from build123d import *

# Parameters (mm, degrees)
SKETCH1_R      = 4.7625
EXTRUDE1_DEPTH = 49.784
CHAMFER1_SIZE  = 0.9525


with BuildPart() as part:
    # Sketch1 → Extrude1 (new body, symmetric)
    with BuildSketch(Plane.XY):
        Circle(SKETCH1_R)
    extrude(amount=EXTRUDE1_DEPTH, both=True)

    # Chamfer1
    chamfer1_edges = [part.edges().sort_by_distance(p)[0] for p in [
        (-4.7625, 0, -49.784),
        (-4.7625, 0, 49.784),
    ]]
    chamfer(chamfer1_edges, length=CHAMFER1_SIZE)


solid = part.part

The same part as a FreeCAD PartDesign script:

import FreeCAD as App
import Part
import Sketcher

V = App.Vector
Q = App.Units.Quantity


def edges_at(feature, points):
    """Names of the edges that pass closest to the given points."""
    edges = feature.Shape.Edges
    near = lambda p: min(range(len(edges)), key=lambda i: edges[i].distToShape(Part.Vertex(*p))[0])
    return sorted({f"Edge{near(p) + 1}" for p in points})

doc = App.newDocument("Part")
body = doc.addObject("PartDesign::Body", "Body")

# Sketch on XY plane
sketch1 = body.newObject("Sketcher::SketchObject", "Sketch")
sketch1.AttachmentSupport = (doc.getObject("XY_Plane"), [""])
sketch1.MapMode = "FlatFace"
sketch1.addGeometry(Part.Circle(V(0, 0, 0), V(0, 0, 1), 4.7625), False)
sketch1.addConstraint(Sketcher.Constraint("Coincident", 0, 3, -1, 1))
sketch1.addConstraint(Sketcher.Constraint("Diameter", 0, Q("0.375 in")))
pad1 = body.newObject("PartDesign::Pad", "Pad")
pad1.Profile = sketch1
pad1.Length = Q("3.92 in")
pad1.Midplane = True
doc.recompute()

chamfer = body.newObject("PartDesign::Chamfer", "Chamfer")
chamfer.Base = (pad1, edges_at(pad1, [(-4.763, 0, -49.784), (-4.763, 0, 49.784)]))
chamfer.Size = Q("0.0375 in")

doc.recompute()
